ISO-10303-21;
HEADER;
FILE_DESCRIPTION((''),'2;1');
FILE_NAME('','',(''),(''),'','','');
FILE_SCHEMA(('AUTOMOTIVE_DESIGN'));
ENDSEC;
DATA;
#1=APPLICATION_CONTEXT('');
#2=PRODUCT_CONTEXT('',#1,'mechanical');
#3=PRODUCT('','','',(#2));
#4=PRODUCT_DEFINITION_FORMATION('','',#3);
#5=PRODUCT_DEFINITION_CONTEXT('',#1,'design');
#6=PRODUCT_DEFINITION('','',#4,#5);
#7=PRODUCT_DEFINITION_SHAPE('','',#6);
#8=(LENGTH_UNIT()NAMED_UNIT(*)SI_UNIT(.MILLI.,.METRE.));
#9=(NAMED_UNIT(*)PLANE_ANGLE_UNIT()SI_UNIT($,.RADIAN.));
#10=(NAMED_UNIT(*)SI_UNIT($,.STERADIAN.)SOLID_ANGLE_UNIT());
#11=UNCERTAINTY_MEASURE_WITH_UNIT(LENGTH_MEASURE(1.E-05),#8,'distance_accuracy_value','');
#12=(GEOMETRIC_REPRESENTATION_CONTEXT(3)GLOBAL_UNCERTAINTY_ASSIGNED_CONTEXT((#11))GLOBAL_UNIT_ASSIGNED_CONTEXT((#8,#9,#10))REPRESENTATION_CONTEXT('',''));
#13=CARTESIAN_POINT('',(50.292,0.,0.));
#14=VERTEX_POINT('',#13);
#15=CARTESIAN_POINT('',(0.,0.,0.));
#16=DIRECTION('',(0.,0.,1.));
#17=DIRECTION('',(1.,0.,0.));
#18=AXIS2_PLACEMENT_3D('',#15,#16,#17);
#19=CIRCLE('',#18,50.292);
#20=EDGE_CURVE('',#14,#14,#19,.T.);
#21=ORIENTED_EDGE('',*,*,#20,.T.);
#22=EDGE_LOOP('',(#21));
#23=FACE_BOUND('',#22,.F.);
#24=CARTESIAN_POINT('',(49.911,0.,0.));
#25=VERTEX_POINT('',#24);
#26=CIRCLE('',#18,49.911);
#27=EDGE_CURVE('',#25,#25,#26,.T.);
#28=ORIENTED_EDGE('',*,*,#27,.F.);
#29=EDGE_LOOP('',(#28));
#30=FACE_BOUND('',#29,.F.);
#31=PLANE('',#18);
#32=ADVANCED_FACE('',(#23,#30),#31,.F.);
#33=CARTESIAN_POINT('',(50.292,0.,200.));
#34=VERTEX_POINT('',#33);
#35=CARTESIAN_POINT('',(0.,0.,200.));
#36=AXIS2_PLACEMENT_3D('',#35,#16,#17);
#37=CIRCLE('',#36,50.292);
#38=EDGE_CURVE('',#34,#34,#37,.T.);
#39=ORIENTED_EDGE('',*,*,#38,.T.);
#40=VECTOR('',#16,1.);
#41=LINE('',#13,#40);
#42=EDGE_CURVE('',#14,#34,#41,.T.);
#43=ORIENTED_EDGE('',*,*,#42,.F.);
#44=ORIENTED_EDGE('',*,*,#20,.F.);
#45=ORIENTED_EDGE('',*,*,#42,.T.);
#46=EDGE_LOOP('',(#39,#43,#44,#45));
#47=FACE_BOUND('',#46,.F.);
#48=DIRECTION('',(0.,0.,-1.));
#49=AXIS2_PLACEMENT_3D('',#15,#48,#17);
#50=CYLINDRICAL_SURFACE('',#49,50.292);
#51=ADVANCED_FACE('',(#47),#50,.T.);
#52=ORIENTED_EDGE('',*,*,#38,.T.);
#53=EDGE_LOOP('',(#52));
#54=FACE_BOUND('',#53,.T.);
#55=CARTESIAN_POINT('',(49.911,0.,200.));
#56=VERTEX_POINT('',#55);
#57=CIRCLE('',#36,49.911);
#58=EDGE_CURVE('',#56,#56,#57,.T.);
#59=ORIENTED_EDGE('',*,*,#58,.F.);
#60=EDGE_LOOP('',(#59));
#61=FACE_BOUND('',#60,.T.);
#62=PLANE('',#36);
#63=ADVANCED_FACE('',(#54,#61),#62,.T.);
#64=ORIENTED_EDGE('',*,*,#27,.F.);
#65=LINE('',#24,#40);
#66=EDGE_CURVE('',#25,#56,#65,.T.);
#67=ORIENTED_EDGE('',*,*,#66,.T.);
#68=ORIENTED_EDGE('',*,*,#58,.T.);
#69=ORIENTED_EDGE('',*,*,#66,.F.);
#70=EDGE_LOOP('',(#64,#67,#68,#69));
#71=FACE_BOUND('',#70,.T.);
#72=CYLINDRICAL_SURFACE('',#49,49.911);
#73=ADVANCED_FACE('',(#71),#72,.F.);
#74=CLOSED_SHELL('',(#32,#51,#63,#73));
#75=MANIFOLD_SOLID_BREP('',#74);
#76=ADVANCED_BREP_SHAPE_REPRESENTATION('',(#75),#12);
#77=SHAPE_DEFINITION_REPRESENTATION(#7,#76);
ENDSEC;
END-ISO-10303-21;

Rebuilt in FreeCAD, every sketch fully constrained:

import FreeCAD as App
import Part
import Sketcher

V = App.Vector
Q = App.Units.Quantity

doc = App.newDocument("Part")
body = doc.addObject("PartDesign::Body", "Body")

sketch1 = body.newObject("Sketcher::SketchObject", "Sketch")
sketch1.AttachmentSupport = (doc.getObject("XY_Plane"), [""])
sketch1.MapMode = "FlatFace"
sketch1.addGeometry([
    Part.Circle(V(0, 0, 0), V(0, 0, 1), 50),
    Part.Circle(V(0, 0, 0), V(0, 0, 1), 50),
], False)
sketch1.addConstraint([
    Sketcher.Constraint("Coincident", 0, 3, -1, 1),
    Sketcher.Constraint("Coincident", 1, 3, -1, 1),
    Sketcher.Constraint("Diameter", 0, Q("3.96 in")),
    Sketcher.Constraint("Diameter", 1, Q("3.93 in")),
])
pad1 = body.newObject("PartDesign::Pad", "Pad")
pad1.Profile = sketch1
pad1.Length = 200

doc.recompute()
